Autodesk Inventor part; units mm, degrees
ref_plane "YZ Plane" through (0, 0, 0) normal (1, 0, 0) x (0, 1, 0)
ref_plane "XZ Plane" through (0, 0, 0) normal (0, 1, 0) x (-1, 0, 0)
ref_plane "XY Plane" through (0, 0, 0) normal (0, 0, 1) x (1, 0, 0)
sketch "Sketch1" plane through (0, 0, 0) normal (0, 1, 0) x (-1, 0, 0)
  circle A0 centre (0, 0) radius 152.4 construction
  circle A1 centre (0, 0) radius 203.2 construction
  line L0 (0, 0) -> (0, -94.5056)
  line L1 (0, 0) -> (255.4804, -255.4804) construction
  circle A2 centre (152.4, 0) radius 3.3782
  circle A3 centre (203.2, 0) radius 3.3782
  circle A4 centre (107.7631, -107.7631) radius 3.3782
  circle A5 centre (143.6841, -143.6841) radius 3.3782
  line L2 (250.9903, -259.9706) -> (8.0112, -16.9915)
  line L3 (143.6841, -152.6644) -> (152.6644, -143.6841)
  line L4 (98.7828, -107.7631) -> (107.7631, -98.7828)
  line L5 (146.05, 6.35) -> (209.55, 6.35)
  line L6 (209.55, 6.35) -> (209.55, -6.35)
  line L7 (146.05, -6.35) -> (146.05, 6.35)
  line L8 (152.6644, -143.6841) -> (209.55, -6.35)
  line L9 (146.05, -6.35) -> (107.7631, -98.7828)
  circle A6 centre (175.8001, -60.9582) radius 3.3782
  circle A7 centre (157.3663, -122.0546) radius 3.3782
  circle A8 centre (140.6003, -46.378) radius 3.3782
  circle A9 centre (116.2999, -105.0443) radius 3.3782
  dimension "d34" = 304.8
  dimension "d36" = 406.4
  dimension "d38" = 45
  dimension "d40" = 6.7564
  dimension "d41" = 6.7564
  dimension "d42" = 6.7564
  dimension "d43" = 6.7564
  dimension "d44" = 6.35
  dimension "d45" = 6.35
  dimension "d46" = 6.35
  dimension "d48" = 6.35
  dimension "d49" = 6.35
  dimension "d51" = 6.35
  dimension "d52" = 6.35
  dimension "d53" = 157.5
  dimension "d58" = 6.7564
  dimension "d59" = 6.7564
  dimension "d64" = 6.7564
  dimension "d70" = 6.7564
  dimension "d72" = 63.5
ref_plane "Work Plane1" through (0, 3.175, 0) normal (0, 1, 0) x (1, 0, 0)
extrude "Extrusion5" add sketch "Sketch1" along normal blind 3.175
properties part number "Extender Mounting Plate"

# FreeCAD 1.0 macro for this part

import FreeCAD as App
import Part
import Sketcher
from FreeCAD import Vector
Q = App.Units.Quantity

doc = App.newDocument("Part")
params = doc.addObject("Spreadsheet::Sheet", "Params")
for row, (alias, value) in enumerate([
    ("sketch1_diameter", "0.266 in"),
    ("sketch1_width", "2.5 in"),
    ("sketch1_length", "2.5 in"),
    ("sketch1_length2", "0.5 in"),
    ("pad1_length", "0.125 in"),
], start=1):
    params.set(f"A{row}", alias)
    params.set(f"B{row}", "=" + value)
    params.setAlias(f"B{row}", alias)

body = doc.addObject("PartDesign::Body", "Body")

# Sketch on XZ plane
sketch1 = body.newObject("Sketcher::SketchObject", "Sketch")
sketch1.AttachmentSupport = (doc.getObject("XZ_Plane"), [""])
sketch1.MapMode = "FlatFace"
sketch1.addGeometry(Part.LineSegment(Vector(-98.8, -107.8, 0), Vector(-143.7, -152.7, 0)), False)
sketch1.addGeometry(Part.LineSegment(Vector(-143.7, -152.7, 0), Vector(-152.7, -143.7, 0)), False)
sketch1.addGeometry(Part.LineSegment(Vector(-152.7, -143.7, 0), Vector(-209.6, -6.3, 0)), False)
sketch1.addGeometry(Part.LineSegment(Vector(-209.6, -6.3, 0), Vector(-209.6, 6.3, 0)), False)
sketch1.addGeometry(Part.LineSegment(Vector(-209.6, 6.3, 0), Vector(-146.1, 6.3, 0)), False)
sketch1.addGeometry(Part.LineSegment(Vector(-146.1, 6.3, 0), Vector(-146.1, -6.3, 0)), False)
sketch1.addGeometry(Part.LineSegment(Vector(-146.1, -6.3, 0), Vector(-107.8, -98.8, 0)), False)
sketch1.addGeometry(Part.LineSegment(Vector(-107.8, -98.8, 0), Vector(-98.8, -107.8, 0)), False)
sketch1.addGeometry(Part.Circle(Vector(-143.7, -143.7, 0), Vector(0, 0, 1), 3.4), False)
sketch1.addGeometry(Part.Circle(Vector(-107.8, -107.8, 0), Vector(0, 0, 1), 3.4), False)
sketch1.addGeometry(Part.Circle(Vector(-116.3, -105, 0), Vector(0, 0, 1), 3.4), False)
sketch1.addGeometry(Part.Circle(Vector(-157.4, -122.1, 0), Vector(0, 0, 1), 3.4), False)
sketch1.addGeometry(Part.Circle(Vector(-140.6, -46.4, 0), Vector(0, 0, 1), 3.4), False)
sketch1.addGeometry(Part.Circle(Vector(-152.4, 0, 0), Vector(0, 0, 1), 3.4), False)
sketch1.addGeometry(Part.Circle(Vector(-175.8, -61, 0), Vector(0, 0, 1), 3.4), False)
sketch1.addGeometry(Part.Circle(Vector(-203.2, 0, 0), Vector(0, 0, 1), 3.4), False)
sketch1.addConstraint(Sketcher.Constraint("Coincident", 0, 2, 1, 1))
sketch1.addConstraint(Sketcher.Constraint("Coincident", 1, 2, 2, 1))
sketch1.addConstraint(Sketcher.Constraint("Coincident", 2, 2, 3, 1))
sketch1.addConstraint(Sketcher.Constraint("Coincident", 3, 2, 4, 1))
sketch1.addConstraint(Sketcher.Constraint("Coincident", 4, 2, 5, 1))
sketch1.addConstraint(Sketcher.Constraint("Coincident", 5, 2, 6, 1))
sketch1.addConstraint(Sketcher.Constraint("Coincident", 6, 2, 7, 1))
sketch1.addConstraint(Sketcher.Constraint("Coincident", 7, 2, 0, 1))
sketch1.addConstraint(Sketcher.Constraint("Vertical", 3))
sketch1.addConstraint(Sketcher.Constraint("Horizontal", 4))
sketch1.addConstraint(Sketcher.Constraint("Vertical", 5))
sketch1.addConstraint(Sketcher.Constraint("Equal", 8, 9))
sketch1.addConstraint(Sketcher.Constraint("Equal", 9, 10))
sketch1.addConstraint(Sketcher.Constraint("Equal", 10, 11))
sketch1.addConstraint(Sketcher.Constraint("Equal", 11, 12))
sketch1.addConstraint(Sketcher.Constraint("Equal", 12, 13))
sketch1.addConstraint(Sketcher.Constraint("Equal", 13, 14))
sketch1.addConstraint(Sketcher.Constraint("Equal", 14, 15))
sketch1.addConstraint(Sketcher.Constraint("PointOnObject", 13, 3, -1))
sketch1.addConstraint(Sketcher.Constraint("PointOnObject", 15, 3, -1))
sketch1.addConstraint(Sketcher.Constraint("Perpendicular", 0, 1))
sketch1.addConstraint(Sketcher.Constraint("Parallel", 2, 6))
sketch1.addConstraint(Sketcher.Constraint("Parallel", 1, 7))
sketch1.addConstraint(Sketcher.Constraint("Horizontal", 8, 3, 1, 2))
sketch1.addConstraint(Sketcher.Constraint("Horizontal", 2, 2, 5, 2))
sketch1.addConstraint(Sketcher.Constraint("Horizontal", 9, 3, 7, 2))
sketch1.addConstraint(Sketcher.Constraint("Vertical", 8, 3, 0, 2))
sketch1.addConstraint(Sketcher.Constraint("Vertical", 9, 3, 6, 2))
sketch1.addConstraint(Sketcher.Constraint("Equal", 1, 7))
sketch1.addConstraint(Sketcher.Constraint("Diameter", 8, Q("0.266 in")))
sketch1.addConstraint(Sketcher.Constraint("DistanceX", 4, 1, 4, 2, Q("2.5 in")))
sketch1.addConstraint(Sketcher.Constraint("Angle", 7, Q("-45 deg")))
sketch1.addConstraint(Sketcher.Constraint("Distance", 0, Q("2.5 in")))
sketch1.addConstraint(Sketcher.Constraint("DistanceY", 2, 2, -1, 1, Q("0.25 in")))
sketch1.addConstraint(Sketcher.Constraint("DistanceY", -1, 1, 3, 2, Q("0.25 in")))
sketch1.addConstraint(Sketcher.Constraint("DistanceX", 2, 2, 15, 3, Q("0.25 in")))
sketch1.addConstraint(Sketcher.Constraint("DistanceX", 13, 3, 4, 2, Q("0.25 in")))
sketch1.addConstraint(Sketcher.Constraint("DistanceX", 13, 3, -1, 1, Q("6 in")))
sketch1.addConstraint(Sketcher.Constraint("Distance", 1, Q("0.5 in")))
sketch1.addConstraint(Sketcher.Constraint("DistanceX", 8, 3, 10, 3, Q("1.0781181 in")))
sketch1.addConstraint(Sketcher.Constraint("DistanceY", 10, 3, -1, 1, Q("4.1356 in")))
sketch1.addConstraint(Sketcher.Constraint("DistanceY", 11, 3, -1, 1, Q("4.8053 in")))
sketch1.addConstraint(Sketcher.Constraint("DistanceY", 12, 3, -1, 1, Q("1.8259 in")))
sketch1.addConstraint(Sketcher.Constraint("DistanceY", 0, 2, -1, 1, Q("6.0104 in")))
sketch1.addConstraint(Sketcher.Constraint("DistanceX", 12, 3, 10, 3, Q("0.9567 in")))
sketch1.addConstraint(Sketcher.Constraint("DistanceX", 14, 3, 0, 2, Q("1.2644 in")))
sketch1.addConstraint(Sketcher.Constraint("DistanceX", 11, 3, -1, 1, Q("157.3663 mm")))
sketch1.addConstraint(Sketcher.Constraint("DistanceY", 14, 3, -1, 1, Q("60.9582 mm")))
sketch1.setExpression("Constraints[29]", "Params.sketch1_diameter")
sketch1.setExpression("Constraints[30]", "Params.sketch1_width")
sketch1.setExpression("Constraints[32]", "Params.sketch1_length")
sketch1.setExpression("Constraints[38]", "Params.sketch1_length2")
pad1 = body.newObject("PartDesign::Pad", "Pad")
pad1.Profile = sketch1
pad1.setExpression("Length", "Params.pad1_length")
pad1.Reversed = True

doc.recompute()
